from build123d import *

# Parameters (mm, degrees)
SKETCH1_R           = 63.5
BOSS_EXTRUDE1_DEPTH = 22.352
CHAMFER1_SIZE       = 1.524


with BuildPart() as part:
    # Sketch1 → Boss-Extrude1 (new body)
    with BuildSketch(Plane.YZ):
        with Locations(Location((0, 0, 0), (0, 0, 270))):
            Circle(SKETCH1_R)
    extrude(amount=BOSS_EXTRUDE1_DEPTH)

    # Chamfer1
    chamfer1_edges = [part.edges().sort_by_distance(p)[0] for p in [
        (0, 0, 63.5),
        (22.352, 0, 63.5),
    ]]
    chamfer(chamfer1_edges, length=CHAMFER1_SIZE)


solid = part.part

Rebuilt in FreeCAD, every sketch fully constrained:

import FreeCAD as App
import Part
import Sketcher
from FreeCAD import Vector
Q = App.Units.Quantity


def edges_at(feature, points):
    """Names of the edges that pass closest to the given points."""
    edges = feature.Shape.Edges
    near = lambda p: min(range(len(edges)), key=lambda i: edges[i].distToShape(Part.Vertex(*p))[0])
    return sorted({f"Edge{near(p) + 1}" for p in points})

doc = App.newDocument("Part")
body = doc.addObject("PartDesign::Body", "Body")

sketch1 = doc.addObject("Sketcher::SketchObject", "Sketch")
body.addObject(sketch1)
sketch1.AttachmentSupport = (doc.YZ_Plane, [""])
sketch1.MapMode = "FlatFace"
sketch1.addGeometry(Part.Circle(Vector(0, 0, 0), Vector(0, 0, 1), 64), False)
sketch1.addConstraint(Sketcher.Constraint("Coincident", 0, 3, -1, 1))
sketch1.addConstraint(Sketcher.Constraint("Diameter", 0, Q("5 in")))
pad1 = doc.addObject("PartDesign::Pad", "Pad")
body.addObject(pad1)
pad1.Profile = sketch1
pad1.Length = Q("0.88 in")
doc.recompute()

chamfer = doc.addObject("PartDesign::Chamfer", "Chamfer")
body.addObject(chamfer)
chamfer.Base = (pad1, edges_at(pad1, [(0, 0, 63.5), (22.352, 0, 63.5)]))
chamfer.Size = Q("0.06 in")

doc.recompute()
